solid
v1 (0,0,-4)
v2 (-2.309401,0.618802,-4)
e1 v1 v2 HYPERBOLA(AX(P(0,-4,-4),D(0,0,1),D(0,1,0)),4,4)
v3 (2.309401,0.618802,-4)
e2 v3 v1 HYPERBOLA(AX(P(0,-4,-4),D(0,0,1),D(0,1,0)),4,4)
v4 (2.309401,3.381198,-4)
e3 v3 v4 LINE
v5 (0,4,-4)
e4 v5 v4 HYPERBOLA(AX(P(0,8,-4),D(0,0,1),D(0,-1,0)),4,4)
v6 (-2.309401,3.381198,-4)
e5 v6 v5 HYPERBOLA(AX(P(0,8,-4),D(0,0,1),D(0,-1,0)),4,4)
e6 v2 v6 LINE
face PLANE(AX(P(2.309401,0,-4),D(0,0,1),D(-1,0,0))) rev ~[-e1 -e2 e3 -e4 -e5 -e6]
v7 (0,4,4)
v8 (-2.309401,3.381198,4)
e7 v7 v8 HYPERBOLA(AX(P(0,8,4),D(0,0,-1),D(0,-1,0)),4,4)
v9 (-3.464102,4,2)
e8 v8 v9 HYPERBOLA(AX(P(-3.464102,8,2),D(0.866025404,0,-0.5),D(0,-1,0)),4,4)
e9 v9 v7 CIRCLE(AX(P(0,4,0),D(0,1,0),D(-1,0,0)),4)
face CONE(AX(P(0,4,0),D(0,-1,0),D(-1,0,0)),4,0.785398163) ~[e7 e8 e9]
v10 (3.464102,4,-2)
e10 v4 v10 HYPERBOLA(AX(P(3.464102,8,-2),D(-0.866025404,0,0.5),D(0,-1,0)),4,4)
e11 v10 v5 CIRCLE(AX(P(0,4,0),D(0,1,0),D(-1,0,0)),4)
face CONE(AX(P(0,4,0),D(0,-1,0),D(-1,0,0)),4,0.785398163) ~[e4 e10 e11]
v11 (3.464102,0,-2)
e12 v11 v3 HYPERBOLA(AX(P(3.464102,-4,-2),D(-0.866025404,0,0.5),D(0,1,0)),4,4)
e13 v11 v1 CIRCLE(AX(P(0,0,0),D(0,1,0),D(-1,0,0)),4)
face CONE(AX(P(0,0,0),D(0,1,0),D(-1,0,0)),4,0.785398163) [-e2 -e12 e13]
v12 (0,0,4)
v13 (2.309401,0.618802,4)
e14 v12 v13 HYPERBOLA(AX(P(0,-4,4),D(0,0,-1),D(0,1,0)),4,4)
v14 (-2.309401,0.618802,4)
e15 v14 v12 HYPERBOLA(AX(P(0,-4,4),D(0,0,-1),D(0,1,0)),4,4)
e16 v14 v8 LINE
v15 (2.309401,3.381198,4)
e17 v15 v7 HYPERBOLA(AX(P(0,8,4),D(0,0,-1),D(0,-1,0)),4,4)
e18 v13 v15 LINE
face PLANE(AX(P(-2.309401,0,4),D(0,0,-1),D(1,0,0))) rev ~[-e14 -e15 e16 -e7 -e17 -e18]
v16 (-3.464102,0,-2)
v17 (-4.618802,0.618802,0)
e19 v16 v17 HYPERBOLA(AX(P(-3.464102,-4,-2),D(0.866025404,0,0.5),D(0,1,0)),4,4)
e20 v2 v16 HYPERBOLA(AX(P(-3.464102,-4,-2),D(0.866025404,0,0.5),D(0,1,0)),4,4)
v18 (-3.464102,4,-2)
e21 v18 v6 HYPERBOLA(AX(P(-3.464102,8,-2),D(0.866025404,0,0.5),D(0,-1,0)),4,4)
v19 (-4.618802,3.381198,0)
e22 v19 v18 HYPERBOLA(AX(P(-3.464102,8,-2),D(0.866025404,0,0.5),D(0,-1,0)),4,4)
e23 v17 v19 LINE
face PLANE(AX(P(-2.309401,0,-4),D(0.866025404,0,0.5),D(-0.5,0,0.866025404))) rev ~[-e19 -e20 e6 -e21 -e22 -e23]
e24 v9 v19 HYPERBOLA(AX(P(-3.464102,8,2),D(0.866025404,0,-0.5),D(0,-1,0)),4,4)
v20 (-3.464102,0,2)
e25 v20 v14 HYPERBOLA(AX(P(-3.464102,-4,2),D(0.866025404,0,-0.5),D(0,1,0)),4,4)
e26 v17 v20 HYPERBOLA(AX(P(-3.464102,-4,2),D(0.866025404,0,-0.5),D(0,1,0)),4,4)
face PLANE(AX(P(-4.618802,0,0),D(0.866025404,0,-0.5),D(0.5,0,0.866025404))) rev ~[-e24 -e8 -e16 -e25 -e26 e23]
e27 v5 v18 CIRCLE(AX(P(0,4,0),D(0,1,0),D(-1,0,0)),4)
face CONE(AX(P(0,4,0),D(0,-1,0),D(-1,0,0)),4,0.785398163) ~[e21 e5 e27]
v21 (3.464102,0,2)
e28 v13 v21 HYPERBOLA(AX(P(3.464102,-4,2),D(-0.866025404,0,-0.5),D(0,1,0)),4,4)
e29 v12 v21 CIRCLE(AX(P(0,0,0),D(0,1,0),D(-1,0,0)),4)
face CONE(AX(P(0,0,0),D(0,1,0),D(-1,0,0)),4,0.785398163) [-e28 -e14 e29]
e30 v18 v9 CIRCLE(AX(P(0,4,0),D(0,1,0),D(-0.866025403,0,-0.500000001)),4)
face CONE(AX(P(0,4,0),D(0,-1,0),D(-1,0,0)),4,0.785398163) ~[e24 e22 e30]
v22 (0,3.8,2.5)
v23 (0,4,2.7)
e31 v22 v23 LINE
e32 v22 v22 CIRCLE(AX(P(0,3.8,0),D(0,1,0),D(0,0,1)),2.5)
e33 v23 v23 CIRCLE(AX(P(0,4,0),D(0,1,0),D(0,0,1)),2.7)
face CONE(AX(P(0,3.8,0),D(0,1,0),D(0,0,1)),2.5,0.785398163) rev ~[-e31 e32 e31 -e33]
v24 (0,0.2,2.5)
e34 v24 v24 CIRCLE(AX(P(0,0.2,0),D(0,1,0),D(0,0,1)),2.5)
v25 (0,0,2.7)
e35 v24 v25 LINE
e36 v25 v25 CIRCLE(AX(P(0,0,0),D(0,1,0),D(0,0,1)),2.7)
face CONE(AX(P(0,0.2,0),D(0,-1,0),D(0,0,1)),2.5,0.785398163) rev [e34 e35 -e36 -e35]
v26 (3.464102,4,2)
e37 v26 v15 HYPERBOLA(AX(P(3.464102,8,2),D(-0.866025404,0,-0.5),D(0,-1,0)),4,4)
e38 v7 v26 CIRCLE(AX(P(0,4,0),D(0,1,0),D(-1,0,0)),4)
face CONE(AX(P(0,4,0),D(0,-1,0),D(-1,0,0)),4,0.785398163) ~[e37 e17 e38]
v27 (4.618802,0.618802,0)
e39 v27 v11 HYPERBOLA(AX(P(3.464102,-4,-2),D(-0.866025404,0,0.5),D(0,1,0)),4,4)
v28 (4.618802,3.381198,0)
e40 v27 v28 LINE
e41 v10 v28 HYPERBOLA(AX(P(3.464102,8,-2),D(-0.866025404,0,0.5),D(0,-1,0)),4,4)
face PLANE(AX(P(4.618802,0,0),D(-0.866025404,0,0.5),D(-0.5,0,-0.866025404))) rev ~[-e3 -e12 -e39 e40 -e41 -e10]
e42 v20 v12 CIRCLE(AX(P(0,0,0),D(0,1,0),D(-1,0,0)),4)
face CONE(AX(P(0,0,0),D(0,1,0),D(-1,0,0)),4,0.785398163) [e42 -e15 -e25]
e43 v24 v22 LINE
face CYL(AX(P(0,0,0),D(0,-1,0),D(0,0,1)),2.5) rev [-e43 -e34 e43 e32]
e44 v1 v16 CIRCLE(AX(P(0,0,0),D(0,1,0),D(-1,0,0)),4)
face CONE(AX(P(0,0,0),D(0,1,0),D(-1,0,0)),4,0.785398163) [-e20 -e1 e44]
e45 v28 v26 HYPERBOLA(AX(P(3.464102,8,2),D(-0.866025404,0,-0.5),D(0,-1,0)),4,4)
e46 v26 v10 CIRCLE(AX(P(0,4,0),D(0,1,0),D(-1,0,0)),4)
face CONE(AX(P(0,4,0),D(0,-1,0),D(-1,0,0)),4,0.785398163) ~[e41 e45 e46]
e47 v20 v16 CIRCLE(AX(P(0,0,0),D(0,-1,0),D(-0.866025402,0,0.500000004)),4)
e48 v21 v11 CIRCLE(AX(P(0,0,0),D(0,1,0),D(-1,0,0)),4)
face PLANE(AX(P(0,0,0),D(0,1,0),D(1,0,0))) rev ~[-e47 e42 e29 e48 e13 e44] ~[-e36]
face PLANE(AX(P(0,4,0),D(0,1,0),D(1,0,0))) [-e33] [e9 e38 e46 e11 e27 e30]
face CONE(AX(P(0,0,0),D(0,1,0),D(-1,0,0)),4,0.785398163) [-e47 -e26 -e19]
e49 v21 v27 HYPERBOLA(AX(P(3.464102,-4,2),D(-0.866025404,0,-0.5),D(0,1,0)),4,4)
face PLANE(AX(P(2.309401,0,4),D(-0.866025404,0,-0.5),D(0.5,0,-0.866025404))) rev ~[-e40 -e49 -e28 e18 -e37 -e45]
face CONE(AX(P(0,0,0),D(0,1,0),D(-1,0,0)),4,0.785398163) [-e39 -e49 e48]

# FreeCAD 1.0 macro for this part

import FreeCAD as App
import Part
import Sketcher
from FreeCAD import Vector
Q = App.Units.Quantity


def edges_at(feature, points):
    """Names of the edges that pass closest to the given points."""
    edges = feature.Shape.Edges
    near = lambda p: min(range(len(edges)), key=lambda i: edges[i].distToShape(Part.Vertex(*p))[0])
    return sorted({f"Edge{near(p) + 1}" for p in points})

doc = App.newDocument("Part")
params = doc.addObject("Spreadsheet::Sheet", "Params")
for row, (alias, value) in enumerate([
    ("sketch1_diameter", "5 mm"),
    ("pad1_length", "4 mm"),
    ("chamfer_size", "0.2 mm"),
    ("sketch2_width", "1 mm"),
    ("groove_angle", "360 deg"),
], start=1):
    params.set(f"A{row}", alias)
    params.set(f"B{row}", "=" + value)
    params.setAlias(f"B{row}", alias)

body = doc.addObject("PartDesign::Body", "Body")

sketch1 = body.newObject("Sketcher::SketchObject", "Sketch")
sketch1.AttachmentSupport = (doc.getObject("XZ_Plane"), [""])
sketch1.MapMode = "FlatFace"
sketch1.addGeometry([
    Part.LineSegment(Vector(-2.3, -4, 0), Vector(-4.6, 0, 0)),
    Part.LineSegment(Vector(-4.6, 0, 0), Vector(-2.3, 4, 0)),
    Part.LineSegment(Vector(-2.3, 4, 0), Vector(2.3, 4, 0)),
    Part.LineSegment(Vector(2.3, 4, 0), Vector(4.6, 0, 0)),
    Part.LineSegment(Vector(4.6, 0, 0), Vector(2.3, -4, 0)),
    Part.LineSegment(Vector(2.3, -4, 0), Vector(-2.3, -4, 0)),
    Part.Circle(Vector(0, 0, 0), Vector(0, 0, 1), 2.5),
], False)
sketch1.addConstraint([
    Sketcher.Constraint("Coincident", 0, 2, 1, 1),
    Sketcher.Constraint("Coincident", 1, 2, 2, 1),
    Sketcher.Constraint("Coincident", 2, 2, 3, 1),
    Sketcher.Constraint("Coincident", 3, 2, 4, 1),
    Sketcher.Constraint("Coincident", 4, 2, 5, 1),
    Sketcher.Constraint("Coincident", 5, 2, 0, 1),
    Sketcher.Constraint("Horizontal", 2),
    Sketcher.Constraint("Horizontal", 5),
    Sketcher.Constraint("Coincident", 6, 3, -1, 1),
    Sketcher.Constraint("Symmetric", 0, 2, 3, 2, -1, 1),
    Sketcher.Constraint("Symmetric", 1, 2, 4, 2, -1, 1),
    Sketcher.Constraint("PointOnObject", 0, 2, -1),
    Sketcher.Constraint("Parallel", 0, 3),
    Sketcher.Constraint("Vertical", 2, 2, 4, 2),
    Sketcher.Constraint("Diameter", 6, 5.0),
    Sketcher.Constraint("Angle", 0, Q("120 deg")),
    Sketcher.Constraint("DistanceY", -1, 1, 1, 2, 4.0),
    Sketcher.Constraint("DistanceX", 1, 2, -1, 1, 2.309401),
])
sketch1.setExpression("Constraints[14]", "Params.sketch1_diameter")
pad1 = body.newObject("PartDesign::Pad", "Pad")
pad1.Profile = sketch1
pad1.setExpression("Length", "Params.pad1_length")
pad1.Reversed = True
doc.recompute()

chamfer = body.newObject("PartDesign::Chamfer", "Chamfer")
chamfer.Base = (pad1, edges_at(pad1, [(0, 0, -2.5), (0, 4, -2.5)]))
chamfer.setExpression("Size", "Params.chamfer_size")

sketch2 = body.newObject("Sketcher::SketchObject", "Sketch001")
sketch2.AttachmentSupport = (doc.getObject("XY_Plane"), [""])
sketch2.MapMode = "FlatFace"
sketch2.addGeometry([
    Part.LineSegment(Vector(-5, 3, 0), Vector(-4, 4, 0)),
    Part.LineSegment(Vector(-4, 4, 0), Vector(-5, 4, 0)),
    Part.LineSegment(Vector(-5, 4, 0), Vector(-5, 3, 0)),
    Part.LineSegment(Vector(-5, 0, 0), Vector(-4, 0, 0)),
    Part.LineSegment(Vector(-4, 0, 0), Vector(-5, 1, 0)),
    Part.LineSegment(Vector(-5, 1, 0), Vector(-5, 0, 0)),
], False)
sketch2.addConstraint([
    Sketcher.Constraint("Coincident", 0, 2, 1, 1),
    Sketcher.Constraint("Coincident", 1, 2, 2, 1),
    Sketcher.Constraint("Coincident", 2, 2, 0, 1),
    Sketcher.Constraint("Coincident", 3, 2, 4, 1),
    Sketcher.Constraint("Coincident", 4, 2, 5, 1),
    Sketcher.Constraint("Coincident", 5, 2, 3, 1),
    Sketcher.Constraint("Horizontal", 1),
    Sketcher.Constraint("Vertical", 2),
    Sketcher.Constraint("Horizontal", 3),
    Sketcher.Constraint("Vertical", 5),
    Sketcher.Constraint("PointOnObject", 3, 2, -1),
    Sketcher.Constraint("Perpendicular", 0, 4),
    Sketcher.Constraint("Vertical", 0, 2, 3, 2),
    Sketcher.Constraint("Vertical", 2, 2, 4, 2),
    Sketcher.Constraint("Equal", 3, 2),
    Sketcher.Constraint("DistanceX", 1, 2, 1, 1, 1.0),
    Sketcher.Constraint("DistanceX", 0, 2, -1, 1, 4.0),
    Sketcher.Constraint("DistanceY", -1, 1, 0, 2, 4.0),
])
sketch2.setExpression("Constraints[15]", "Params.sketch2_width")
groove = body.newObject("PartDesign::Groove", "Groove")
groove.Profile = sketch2
groove.ReferenceAxis = (sketch2, ["V_Axis"])
groove.setExpression("Angle", "Params.groove_angle")

doc.recompute()
